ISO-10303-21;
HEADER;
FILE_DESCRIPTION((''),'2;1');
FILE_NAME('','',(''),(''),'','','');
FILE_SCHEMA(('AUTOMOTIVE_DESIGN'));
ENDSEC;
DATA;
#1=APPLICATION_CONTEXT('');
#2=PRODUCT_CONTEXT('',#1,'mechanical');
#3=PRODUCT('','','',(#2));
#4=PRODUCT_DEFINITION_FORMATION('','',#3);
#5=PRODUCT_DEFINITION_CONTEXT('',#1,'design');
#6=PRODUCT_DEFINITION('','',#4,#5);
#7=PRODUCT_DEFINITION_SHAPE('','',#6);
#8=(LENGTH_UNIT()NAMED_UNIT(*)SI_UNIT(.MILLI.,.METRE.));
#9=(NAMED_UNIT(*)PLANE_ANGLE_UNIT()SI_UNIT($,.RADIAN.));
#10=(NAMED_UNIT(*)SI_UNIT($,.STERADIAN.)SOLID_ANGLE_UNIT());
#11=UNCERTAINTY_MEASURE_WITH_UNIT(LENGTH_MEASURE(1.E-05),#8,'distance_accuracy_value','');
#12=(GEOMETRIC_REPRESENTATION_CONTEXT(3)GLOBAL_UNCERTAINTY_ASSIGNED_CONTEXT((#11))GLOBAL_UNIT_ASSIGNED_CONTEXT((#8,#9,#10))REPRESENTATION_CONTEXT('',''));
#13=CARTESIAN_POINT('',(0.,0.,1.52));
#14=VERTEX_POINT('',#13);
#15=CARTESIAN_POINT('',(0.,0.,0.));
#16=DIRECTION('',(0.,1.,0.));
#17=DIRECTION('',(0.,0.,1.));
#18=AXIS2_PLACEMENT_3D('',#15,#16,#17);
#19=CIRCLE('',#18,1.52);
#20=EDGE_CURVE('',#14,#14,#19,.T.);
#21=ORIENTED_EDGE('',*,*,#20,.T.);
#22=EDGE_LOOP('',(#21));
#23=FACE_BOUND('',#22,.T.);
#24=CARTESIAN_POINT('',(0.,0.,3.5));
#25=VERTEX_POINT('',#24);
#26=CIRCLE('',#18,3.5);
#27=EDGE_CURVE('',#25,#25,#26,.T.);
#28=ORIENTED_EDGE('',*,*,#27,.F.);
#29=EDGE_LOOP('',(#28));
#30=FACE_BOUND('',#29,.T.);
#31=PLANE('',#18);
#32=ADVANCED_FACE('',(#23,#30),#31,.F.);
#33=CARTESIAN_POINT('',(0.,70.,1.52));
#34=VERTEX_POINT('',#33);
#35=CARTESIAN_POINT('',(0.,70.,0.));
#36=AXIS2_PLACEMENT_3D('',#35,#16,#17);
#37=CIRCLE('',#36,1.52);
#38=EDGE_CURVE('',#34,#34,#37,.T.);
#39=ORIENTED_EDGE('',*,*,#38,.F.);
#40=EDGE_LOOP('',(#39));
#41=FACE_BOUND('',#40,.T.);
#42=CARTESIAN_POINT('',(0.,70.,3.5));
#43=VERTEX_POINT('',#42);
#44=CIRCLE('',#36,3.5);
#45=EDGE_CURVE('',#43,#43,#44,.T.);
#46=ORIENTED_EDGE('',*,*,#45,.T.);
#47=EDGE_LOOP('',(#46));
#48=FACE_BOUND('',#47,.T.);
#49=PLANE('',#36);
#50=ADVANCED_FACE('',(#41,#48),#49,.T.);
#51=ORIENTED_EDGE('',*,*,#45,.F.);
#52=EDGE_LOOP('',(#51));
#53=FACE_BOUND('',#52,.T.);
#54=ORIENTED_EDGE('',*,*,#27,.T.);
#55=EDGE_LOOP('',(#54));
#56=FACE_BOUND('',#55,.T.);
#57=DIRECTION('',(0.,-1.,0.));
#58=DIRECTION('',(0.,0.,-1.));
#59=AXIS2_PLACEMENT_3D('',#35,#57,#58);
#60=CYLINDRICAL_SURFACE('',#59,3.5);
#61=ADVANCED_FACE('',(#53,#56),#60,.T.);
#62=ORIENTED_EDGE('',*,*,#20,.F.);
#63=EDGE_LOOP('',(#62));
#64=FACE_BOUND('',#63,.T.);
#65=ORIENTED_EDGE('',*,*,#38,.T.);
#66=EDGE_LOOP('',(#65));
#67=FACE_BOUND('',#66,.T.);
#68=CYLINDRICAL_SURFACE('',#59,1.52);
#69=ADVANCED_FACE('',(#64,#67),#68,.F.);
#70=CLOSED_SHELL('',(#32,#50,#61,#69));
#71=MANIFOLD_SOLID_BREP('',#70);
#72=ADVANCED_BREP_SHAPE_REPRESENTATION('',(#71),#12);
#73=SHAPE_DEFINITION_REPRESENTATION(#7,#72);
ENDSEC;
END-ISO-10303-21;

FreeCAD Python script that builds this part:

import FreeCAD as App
import Part
import Sketcher

V = App.Vector

doc = App.newDocument("Part")
body = doc.addObject("PartDesign::Body", "Body")

sketch1 = doc.addObject("Sketcher::SketchObject", "Sketch")
body.addObject(sketch1)
sketch1.AttachmentSupport = (doc.XZ_Plane, [""])
sketch1.MapMode = "FlatFace"
sketch1.addGeometry(Part.Circle(V(0, 0, 0), V(0, 0, 1), 3.5), False)
sketch1.addGeometry(Part.Circle(V(0, 0, 0), V(0, 0, 1), 1.5), False)
sketch1.addConstraint(Sketcher.Constraint("Coincident", 0, 3, -1, 1))
sketch1.addConstraint(Sketcher.Constraint("Coincident", 1, 3, -1, 1))
sketch1.addConstraint(Sketcher.Constraint("Diameter", 0, 7.0))
sketch1.addConstraint(Sketcher.Constraint("Diameter", 1, 3.04))
pad1 = doc.addObject("PartDesign::Pad", "Pad")
body.addObject(pad1)
pad1.Profile = sketch1
pad1.Length = 70
pad1.Reversed = True

doc.recompute()
